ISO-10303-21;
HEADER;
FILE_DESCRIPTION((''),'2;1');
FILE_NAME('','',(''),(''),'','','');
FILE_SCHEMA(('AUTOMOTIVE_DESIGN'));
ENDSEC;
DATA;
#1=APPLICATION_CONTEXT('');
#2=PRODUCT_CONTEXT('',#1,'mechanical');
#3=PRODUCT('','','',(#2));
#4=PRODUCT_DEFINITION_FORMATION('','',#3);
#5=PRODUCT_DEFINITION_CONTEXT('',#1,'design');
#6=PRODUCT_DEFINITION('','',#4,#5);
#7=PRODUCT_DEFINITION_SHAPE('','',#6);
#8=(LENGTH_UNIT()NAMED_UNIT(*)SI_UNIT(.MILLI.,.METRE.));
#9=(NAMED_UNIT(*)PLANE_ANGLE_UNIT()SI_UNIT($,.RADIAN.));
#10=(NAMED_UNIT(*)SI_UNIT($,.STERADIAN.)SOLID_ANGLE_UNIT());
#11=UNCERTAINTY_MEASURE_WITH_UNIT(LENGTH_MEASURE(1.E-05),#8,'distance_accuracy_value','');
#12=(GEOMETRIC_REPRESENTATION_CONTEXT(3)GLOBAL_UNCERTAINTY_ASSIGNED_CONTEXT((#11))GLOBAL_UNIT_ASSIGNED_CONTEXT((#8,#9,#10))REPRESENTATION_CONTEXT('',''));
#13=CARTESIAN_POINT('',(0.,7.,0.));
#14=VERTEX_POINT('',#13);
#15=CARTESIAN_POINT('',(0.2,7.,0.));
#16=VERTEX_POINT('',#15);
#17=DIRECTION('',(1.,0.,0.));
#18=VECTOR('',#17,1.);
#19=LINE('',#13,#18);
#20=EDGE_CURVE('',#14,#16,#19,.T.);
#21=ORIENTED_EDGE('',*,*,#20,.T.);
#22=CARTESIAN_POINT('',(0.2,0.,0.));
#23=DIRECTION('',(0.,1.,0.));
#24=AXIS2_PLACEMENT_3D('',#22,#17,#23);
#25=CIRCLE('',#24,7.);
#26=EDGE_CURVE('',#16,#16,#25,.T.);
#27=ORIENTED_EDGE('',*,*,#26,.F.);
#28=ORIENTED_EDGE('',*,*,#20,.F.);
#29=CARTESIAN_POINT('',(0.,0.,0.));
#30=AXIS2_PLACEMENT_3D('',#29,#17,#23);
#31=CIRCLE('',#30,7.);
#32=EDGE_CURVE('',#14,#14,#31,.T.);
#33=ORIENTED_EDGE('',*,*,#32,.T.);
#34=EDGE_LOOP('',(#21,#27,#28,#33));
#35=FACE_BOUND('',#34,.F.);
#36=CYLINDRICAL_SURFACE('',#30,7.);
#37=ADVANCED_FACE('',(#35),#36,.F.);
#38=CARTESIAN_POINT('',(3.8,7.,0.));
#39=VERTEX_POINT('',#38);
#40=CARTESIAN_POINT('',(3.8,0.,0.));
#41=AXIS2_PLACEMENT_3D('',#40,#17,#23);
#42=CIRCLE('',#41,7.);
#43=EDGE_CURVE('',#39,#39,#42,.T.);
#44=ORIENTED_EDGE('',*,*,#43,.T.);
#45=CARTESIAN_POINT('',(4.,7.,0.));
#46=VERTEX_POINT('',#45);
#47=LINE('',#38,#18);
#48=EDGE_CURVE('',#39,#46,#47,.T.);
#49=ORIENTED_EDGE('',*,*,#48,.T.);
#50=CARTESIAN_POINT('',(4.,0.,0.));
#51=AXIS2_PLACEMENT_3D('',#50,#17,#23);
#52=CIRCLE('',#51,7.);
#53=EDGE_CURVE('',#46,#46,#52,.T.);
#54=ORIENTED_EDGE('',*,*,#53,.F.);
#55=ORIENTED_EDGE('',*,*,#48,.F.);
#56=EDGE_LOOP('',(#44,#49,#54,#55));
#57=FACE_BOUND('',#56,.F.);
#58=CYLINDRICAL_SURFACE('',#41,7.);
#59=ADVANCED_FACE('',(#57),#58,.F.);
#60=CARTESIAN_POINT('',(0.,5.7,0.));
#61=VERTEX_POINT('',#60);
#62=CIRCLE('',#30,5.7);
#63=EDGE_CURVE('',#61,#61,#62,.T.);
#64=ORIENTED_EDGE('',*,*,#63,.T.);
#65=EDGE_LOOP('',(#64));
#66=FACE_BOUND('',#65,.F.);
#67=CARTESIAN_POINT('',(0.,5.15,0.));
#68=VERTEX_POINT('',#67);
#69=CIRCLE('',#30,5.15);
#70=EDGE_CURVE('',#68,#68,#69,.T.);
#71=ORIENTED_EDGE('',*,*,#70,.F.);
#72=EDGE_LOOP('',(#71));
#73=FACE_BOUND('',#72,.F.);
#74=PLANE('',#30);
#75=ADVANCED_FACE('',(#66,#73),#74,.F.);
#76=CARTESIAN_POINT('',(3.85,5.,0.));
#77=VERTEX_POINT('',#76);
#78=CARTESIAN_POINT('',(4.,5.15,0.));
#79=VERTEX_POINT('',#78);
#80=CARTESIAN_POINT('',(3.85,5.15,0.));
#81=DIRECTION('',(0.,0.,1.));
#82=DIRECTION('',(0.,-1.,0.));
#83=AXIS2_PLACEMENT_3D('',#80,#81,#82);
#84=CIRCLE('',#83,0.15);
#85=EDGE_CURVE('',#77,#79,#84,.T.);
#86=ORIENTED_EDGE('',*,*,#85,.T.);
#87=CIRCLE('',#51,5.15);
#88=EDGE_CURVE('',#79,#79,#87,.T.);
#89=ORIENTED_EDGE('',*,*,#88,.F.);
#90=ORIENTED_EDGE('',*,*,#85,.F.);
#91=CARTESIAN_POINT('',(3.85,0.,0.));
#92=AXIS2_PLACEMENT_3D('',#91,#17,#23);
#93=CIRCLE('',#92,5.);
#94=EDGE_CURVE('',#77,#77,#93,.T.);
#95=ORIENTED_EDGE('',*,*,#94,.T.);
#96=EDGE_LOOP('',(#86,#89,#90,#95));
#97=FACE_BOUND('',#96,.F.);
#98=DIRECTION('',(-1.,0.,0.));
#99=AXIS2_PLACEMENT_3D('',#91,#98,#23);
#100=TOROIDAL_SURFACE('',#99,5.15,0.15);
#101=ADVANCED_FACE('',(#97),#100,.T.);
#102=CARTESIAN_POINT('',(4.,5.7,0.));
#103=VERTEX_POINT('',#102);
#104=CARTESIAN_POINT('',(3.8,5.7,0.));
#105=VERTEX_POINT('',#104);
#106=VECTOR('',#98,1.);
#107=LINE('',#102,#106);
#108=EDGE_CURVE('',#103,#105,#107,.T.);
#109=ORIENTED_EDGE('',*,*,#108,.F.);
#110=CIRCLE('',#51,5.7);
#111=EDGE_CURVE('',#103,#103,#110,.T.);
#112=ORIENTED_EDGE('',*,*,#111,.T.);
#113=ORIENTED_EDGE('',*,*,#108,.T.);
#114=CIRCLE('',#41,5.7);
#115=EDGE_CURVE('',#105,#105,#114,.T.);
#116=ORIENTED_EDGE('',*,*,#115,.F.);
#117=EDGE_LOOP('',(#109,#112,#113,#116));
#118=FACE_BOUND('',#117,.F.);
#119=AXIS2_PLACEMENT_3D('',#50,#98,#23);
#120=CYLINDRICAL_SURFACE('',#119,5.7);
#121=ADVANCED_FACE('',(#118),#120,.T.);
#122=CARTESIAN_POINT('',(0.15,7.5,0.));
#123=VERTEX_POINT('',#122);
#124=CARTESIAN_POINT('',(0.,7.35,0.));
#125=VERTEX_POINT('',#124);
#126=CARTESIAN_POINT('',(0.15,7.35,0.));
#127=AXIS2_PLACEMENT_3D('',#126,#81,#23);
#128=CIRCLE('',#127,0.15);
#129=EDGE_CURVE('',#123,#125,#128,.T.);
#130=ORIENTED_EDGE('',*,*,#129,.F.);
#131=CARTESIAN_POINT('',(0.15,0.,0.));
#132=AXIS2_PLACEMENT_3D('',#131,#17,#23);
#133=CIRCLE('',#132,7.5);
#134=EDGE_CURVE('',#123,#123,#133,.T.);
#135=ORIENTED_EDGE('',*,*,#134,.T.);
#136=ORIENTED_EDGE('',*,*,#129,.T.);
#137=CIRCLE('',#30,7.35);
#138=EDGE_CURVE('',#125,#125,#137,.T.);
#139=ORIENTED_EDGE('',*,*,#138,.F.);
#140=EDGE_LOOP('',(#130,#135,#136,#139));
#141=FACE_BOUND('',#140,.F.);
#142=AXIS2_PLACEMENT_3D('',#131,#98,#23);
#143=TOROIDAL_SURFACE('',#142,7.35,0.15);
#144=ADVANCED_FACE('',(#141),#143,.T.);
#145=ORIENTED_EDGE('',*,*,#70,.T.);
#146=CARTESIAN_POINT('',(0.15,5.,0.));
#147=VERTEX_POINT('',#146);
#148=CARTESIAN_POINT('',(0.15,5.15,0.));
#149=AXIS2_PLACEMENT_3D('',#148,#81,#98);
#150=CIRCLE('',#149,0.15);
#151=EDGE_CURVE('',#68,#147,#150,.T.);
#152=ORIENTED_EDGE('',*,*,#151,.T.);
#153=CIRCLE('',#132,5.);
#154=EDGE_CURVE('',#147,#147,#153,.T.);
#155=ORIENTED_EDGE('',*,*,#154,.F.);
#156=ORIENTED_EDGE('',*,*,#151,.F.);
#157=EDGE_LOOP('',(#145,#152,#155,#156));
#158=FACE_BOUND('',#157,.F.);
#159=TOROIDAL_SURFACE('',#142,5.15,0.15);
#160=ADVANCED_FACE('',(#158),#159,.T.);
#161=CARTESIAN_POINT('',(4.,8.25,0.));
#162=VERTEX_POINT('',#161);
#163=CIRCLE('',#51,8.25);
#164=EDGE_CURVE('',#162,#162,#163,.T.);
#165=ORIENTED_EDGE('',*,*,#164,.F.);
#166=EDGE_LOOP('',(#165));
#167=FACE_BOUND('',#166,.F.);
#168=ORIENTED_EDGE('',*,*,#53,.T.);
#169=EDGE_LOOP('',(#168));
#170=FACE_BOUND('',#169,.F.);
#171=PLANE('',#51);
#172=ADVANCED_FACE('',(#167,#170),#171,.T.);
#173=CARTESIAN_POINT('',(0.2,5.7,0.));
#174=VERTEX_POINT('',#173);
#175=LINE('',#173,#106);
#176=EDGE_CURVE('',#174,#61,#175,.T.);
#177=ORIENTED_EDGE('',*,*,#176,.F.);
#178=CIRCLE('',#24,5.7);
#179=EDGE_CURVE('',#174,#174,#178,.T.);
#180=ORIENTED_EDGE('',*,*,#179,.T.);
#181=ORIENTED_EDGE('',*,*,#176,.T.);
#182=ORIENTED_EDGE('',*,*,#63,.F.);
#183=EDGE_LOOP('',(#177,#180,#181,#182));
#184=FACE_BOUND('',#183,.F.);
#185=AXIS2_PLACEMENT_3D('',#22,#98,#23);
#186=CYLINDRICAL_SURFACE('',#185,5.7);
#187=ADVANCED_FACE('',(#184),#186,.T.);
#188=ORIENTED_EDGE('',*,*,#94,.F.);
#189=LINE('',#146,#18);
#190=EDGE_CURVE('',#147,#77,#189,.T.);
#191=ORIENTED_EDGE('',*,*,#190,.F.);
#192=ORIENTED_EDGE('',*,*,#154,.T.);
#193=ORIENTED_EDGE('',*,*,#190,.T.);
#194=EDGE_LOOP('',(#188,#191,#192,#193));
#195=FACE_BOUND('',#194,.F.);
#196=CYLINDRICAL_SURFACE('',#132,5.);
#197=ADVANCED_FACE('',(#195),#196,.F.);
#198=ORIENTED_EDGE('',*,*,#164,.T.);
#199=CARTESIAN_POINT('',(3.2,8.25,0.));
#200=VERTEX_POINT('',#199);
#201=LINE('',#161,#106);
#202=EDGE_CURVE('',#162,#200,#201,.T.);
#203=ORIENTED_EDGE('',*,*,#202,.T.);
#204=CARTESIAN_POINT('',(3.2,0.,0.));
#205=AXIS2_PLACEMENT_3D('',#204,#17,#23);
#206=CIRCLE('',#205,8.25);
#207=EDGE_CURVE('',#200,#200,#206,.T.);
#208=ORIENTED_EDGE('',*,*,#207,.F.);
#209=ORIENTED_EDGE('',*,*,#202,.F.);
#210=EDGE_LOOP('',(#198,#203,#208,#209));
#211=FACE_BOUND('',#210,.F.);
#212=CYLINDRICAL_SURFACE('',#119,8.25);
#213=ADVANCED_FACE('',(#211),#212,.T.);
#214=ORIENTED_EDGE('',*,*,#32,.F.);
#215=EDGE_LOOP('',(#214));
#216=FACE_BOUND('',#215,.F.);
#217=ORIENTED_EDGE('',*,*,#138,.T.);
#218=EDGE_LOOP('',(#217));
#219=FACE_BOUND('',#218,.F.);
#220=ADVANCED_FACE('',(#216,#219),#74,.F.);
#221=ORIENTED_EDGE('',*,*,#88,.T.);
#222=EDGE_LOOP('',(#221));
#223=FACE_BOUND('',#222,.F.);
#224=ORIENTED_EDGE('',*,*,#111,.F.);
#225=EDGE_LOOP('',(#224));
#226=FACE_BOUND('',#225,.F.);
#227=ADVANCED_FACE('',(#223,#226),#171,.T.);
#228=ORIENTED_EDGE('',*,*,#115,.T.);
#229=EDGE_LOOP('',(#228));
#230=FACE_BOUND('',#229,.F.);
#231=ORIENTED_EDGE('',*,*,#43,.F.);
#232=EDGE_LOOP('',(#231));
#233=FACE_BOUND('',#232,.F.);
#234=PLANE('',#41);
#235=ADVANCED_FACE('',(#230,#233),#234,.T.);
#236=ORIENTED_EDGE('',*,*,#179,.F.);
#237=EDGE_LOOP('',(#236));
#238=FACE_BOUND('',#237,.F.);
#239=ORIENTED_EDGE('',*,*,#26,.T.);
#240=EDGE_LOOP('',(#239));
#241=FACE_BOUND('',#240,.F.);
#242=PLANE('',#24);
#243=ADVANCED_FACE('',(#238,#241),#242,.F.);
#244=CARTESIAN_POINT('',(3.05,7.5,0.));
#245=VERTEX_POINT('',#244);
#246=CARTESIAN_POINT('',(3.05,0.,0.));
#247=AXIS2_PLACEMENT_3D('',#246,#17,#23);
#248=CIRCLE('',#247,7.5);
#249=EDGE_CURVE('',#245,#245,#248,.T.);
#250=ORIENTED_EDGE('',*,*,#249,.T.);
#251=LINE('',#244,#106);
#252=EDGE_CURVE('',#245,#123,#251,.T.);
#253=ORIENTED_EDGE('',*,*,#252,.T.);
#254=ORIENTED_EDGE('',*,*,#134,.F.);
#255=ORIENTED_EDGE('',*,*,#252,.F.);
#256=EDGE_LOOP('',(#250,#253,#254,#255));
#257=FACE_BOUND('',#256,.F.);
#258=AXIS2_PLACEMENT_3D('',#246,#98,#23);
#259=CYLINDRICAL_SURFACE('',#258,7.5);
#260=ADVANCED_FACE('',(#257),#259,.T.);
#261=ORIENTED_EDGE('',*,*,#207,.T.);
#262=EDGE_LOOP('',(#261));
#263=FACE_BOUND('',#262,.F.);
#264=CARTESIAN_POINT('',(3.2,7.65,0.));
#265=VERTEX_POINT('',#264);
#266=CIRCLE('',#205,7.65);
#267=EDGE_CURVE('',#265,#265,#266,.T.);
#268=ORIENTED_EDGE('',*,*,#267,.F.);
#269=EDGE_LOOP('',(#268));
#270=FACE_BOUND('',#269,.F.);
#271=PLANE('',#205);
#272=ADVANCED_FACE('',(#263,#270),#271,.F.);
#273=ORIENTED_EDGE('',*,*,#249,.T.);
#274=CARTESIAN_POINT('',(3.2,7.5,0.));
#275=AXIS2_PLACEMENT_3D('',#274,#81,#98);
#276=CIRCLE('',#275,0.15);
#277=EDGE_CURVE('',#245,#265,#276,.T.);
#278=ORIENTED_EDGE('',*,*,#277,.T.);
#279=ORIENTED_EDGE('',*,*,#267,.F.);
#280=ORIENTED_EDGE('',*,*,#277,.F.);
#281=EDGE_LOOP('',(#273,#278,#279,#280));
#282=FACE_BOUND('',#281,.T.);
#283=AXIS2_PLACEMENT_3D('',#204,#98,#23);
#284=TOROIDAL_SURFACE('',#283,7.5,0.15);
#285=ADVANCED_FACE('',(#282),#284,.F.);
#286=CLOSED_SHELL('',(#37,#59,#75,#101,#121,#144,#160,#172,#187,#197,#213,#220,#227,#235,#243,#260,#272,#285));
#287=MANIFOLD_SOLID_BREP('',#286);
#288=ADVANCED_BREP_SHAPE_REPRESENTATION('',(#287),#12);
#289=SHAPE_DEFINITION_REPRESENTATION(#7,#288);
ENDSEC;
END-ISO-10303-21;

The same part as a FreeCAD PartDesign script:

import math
import FreeCAD as App
import Part
import Sketcher

doc = App.newDocument("Part")
body = doc.addObject("PartDesign::Body", "Body")

# Sketch on XY plane
sketch1 = body.newObject("Sketcher::SketchObject", "Sketch")
sketch1.AttachmentSupport = (doc.getObject("XY_Plane"), [""])
sketch1.MapMode = "FlatFace"
sketch1.addGeometry([
    Part.LineSegment(App.Vector(0, 5.7, 0), App.Vector(0, 5.15, 0)),  # 0
    Part.ArcOfCircle(Part.Circle(App.Vector(0.15, 5.15, 0), App.Vector(0, 0, 1), 0.15), math.radians(180), math.radians(270)),  # 1
    Part.LineSegment(App.Vector(0.15, 5, 0), App.Vector(3.85, 5, 0)),  # 2
    Part.ArcOfCircle(Part.Circle(App.Vector(3.85, 5.15, 0), App.Vector(0, 0, 1), 0.15), math.radians(-90), math.radians(0)),  # 3
    Part.LineSegment(App.Vector(4, 5.15, 0), App.Vector(4, 5.7, 0)),  # 4
    Part.LineSegment(App.Vector(4, 5.7, 0), App.Vector(3.8, 5.7, 0)),  # 5
    Part.LineSegment(App.Vector(3.8, 5.7, 0), App.Vector(3.8, 7, 0)),  # 6
    Part.LineSegment(App.Vector(3.8, 7, 0), App.Vector(4, 7, 0)),  # 7
    Part.LineSegment(App.Vector(4, 7, 0), App.Vector(4, 8.25, 0)),  # 8
    Part.LineSegment(App.Vector(4, 8.25, 0), App.Vector(3.2, 8.25, 0)),  # 9
    Part.LineSegment(App.Vector(3.2, 8.25, 0), App.Vector(3.2, 7.65, 0)),  # 10
    Part.ArcOfCircle(Part.Circle(App.Vector(3.2, 7.5, 0), App.Vector(0, 0, 1), 0.15), math.radians(180), math.radians(450)),  # 11
    Part.LineSegment(App.Vector(3.05, 7.5, 0), App.Vector(0.15, 7.5, 0)),  # 12
    Part.ArcOfCircle(Part.Circle(App.Vector(0.15, 7.35, 0), App.Vector(0, 0, 1), 0.15), math.radians(90), math.radians(180)),  # 13
    Part.LineSegment(App.Vector(0, 7.35, 0), App.Vector(0, 7, 0)),  # 14
    Part.LineSegment(App.Vector(0, 7, 0), App.Vector(0.2, 7, 0)),  # 15
    Part.LineSegment(App.Vector(0.2, 7, 0), App.Vector(0.2, 5.7, 0)),  # 16
    Part.LineSegment(App.Vector(0.2, 5.7, 0), App.Vector(0, 5.7, 0)),  # 17
], False)
sketch1.addConstraint([
    Sketcher.Constraint("Tangent", 0, 2, 1, 1),
    Sketcher.Constraint("Tangent", 1, 2, 2, 1),
    Sketcher.Constraint("Tangent", 2, 2, 3, 1),
    Sketcher.Constraint("Tangent", 3, 2, 4, 1),
    Sketcher.Constraint("Coincident", 4, 2, 5, 1),
    Sketcher.Constraint("Coincident", 5, 2, 6, 1),
    Sketcher.Constraint("Coincident", 6, 2, 7, 1),
    Sketcher.Constraint("Coincident", 7, 2, 8, 1),
    Sketcher.Constraint("Coincident", 8, 2, 9, 1),
    Sketcher.Constraint("Coincident", 9, 2, 10, 1),
    Sketcher.Constraint("Coincident", 10, 2, 11, 2),
    Sketcher.Constraint("Coincident", 11, 1, 12, 1),
    Sketcher.Constraint("Tangent", 12, 2, 13, 1),
    Sketcher.Constraint("Tangent", 13, 2, 14, 1),
    Sketcher.Constraint("Coincident", 14, 2, 15, 1),
    Sketcher.Constraint("Coincident", 15, 2, 16, 1),
    Sketcher.Constraint("Coincident", 16, 2, 17, 1),
    Sketcher.Constraint("Coincident", 17, 2, 0, 1),
    Sketcher.Constraint("Vertical", 0),
    Sketcher.Constraint("Horizontal", 2),
    Sketcher.Constraint("Vertical", 4),
    Sketcher.Constraint("Horizontal", 5),
    Sketcher.Constraint("Vertical", 6),
    Sketcher.Constraint("Horizontal", 7),
    Sketcher.Constraint("Vertical", 8),
    Sketcher.Constraint("Horizontal", 9),
    Sketcher.Constraint("Vertical", 10),
    Sketcher.Constraint("Horizontal", 12),
    Sketcher.Constraint("Vertical", 14),
    Sketcher.Constraint("Horizontal", 15),
    Sketcher.Constraint("Vertical", 16),
    Sketcher.Constraint("Horizontal", 17),
    Sketcher.Constraint("Equal", 1, 3),
    Sketcher.Constraint("Equal", 3, 11),
    Sketcher.Constraint("Equal", 11, 13),
    Sketcher.Constraint("PointOnObject", 0, 2, -2),
    Sketcher.Constraint("PointOnObject", 13, 2, -2),
    Sketcher.Constraint("Horizontal", 7, 2, 14, 2),
    Sketcher.Constraint("Horizontal", 5, 2, 16, 2),
    Sketcher.Constraint("Vertical", 4, 2, 7, 2),
    Sketcher.Constraint("Vertical", 11, 3, 9, 2),
    Sketcher.Constraint("Equal", 7, 15),
    Sketcher.Constraint("Radius", 1, 0.15),
    Sketcher.Constraint("DistanceX", 2, 1, 2, 2, 3.7),
    Sketcher.Constraint("DistanceX", 5, 2, 5, 1, 0.2),
    Sketcher.Constraint("DistanceX", 9, 2, 9, 1, 0.8),
    Sketcher.Constraint("DistanceY", 6, 1, 6, 2, 1.3),
    Sketcher.Constraint("DistanceY", 10, 2, 10, 1, 0.6),
    Sketcher.Constraint("DistanceY", -1, 1, 1, 2, 5.0),
    Sketcher.Constraint("DistanceY", -1, 1, 6, 2, 7.0),
    Sketcher.Constraint("DistanceY", 8, 1, 8, 2, 1.25),
    Sketcher.Constraint("DistanceY", 14, 2, 14, 1, 0.35),
])
revolution = body.newObject("PartDesign::Revolution", "Revolution")
revolution.Profile = sketch1
revolution.ReferenceAxis = (sketch1, ["H_Axis"])
revolution.Angle = 360

doc.recompute()
